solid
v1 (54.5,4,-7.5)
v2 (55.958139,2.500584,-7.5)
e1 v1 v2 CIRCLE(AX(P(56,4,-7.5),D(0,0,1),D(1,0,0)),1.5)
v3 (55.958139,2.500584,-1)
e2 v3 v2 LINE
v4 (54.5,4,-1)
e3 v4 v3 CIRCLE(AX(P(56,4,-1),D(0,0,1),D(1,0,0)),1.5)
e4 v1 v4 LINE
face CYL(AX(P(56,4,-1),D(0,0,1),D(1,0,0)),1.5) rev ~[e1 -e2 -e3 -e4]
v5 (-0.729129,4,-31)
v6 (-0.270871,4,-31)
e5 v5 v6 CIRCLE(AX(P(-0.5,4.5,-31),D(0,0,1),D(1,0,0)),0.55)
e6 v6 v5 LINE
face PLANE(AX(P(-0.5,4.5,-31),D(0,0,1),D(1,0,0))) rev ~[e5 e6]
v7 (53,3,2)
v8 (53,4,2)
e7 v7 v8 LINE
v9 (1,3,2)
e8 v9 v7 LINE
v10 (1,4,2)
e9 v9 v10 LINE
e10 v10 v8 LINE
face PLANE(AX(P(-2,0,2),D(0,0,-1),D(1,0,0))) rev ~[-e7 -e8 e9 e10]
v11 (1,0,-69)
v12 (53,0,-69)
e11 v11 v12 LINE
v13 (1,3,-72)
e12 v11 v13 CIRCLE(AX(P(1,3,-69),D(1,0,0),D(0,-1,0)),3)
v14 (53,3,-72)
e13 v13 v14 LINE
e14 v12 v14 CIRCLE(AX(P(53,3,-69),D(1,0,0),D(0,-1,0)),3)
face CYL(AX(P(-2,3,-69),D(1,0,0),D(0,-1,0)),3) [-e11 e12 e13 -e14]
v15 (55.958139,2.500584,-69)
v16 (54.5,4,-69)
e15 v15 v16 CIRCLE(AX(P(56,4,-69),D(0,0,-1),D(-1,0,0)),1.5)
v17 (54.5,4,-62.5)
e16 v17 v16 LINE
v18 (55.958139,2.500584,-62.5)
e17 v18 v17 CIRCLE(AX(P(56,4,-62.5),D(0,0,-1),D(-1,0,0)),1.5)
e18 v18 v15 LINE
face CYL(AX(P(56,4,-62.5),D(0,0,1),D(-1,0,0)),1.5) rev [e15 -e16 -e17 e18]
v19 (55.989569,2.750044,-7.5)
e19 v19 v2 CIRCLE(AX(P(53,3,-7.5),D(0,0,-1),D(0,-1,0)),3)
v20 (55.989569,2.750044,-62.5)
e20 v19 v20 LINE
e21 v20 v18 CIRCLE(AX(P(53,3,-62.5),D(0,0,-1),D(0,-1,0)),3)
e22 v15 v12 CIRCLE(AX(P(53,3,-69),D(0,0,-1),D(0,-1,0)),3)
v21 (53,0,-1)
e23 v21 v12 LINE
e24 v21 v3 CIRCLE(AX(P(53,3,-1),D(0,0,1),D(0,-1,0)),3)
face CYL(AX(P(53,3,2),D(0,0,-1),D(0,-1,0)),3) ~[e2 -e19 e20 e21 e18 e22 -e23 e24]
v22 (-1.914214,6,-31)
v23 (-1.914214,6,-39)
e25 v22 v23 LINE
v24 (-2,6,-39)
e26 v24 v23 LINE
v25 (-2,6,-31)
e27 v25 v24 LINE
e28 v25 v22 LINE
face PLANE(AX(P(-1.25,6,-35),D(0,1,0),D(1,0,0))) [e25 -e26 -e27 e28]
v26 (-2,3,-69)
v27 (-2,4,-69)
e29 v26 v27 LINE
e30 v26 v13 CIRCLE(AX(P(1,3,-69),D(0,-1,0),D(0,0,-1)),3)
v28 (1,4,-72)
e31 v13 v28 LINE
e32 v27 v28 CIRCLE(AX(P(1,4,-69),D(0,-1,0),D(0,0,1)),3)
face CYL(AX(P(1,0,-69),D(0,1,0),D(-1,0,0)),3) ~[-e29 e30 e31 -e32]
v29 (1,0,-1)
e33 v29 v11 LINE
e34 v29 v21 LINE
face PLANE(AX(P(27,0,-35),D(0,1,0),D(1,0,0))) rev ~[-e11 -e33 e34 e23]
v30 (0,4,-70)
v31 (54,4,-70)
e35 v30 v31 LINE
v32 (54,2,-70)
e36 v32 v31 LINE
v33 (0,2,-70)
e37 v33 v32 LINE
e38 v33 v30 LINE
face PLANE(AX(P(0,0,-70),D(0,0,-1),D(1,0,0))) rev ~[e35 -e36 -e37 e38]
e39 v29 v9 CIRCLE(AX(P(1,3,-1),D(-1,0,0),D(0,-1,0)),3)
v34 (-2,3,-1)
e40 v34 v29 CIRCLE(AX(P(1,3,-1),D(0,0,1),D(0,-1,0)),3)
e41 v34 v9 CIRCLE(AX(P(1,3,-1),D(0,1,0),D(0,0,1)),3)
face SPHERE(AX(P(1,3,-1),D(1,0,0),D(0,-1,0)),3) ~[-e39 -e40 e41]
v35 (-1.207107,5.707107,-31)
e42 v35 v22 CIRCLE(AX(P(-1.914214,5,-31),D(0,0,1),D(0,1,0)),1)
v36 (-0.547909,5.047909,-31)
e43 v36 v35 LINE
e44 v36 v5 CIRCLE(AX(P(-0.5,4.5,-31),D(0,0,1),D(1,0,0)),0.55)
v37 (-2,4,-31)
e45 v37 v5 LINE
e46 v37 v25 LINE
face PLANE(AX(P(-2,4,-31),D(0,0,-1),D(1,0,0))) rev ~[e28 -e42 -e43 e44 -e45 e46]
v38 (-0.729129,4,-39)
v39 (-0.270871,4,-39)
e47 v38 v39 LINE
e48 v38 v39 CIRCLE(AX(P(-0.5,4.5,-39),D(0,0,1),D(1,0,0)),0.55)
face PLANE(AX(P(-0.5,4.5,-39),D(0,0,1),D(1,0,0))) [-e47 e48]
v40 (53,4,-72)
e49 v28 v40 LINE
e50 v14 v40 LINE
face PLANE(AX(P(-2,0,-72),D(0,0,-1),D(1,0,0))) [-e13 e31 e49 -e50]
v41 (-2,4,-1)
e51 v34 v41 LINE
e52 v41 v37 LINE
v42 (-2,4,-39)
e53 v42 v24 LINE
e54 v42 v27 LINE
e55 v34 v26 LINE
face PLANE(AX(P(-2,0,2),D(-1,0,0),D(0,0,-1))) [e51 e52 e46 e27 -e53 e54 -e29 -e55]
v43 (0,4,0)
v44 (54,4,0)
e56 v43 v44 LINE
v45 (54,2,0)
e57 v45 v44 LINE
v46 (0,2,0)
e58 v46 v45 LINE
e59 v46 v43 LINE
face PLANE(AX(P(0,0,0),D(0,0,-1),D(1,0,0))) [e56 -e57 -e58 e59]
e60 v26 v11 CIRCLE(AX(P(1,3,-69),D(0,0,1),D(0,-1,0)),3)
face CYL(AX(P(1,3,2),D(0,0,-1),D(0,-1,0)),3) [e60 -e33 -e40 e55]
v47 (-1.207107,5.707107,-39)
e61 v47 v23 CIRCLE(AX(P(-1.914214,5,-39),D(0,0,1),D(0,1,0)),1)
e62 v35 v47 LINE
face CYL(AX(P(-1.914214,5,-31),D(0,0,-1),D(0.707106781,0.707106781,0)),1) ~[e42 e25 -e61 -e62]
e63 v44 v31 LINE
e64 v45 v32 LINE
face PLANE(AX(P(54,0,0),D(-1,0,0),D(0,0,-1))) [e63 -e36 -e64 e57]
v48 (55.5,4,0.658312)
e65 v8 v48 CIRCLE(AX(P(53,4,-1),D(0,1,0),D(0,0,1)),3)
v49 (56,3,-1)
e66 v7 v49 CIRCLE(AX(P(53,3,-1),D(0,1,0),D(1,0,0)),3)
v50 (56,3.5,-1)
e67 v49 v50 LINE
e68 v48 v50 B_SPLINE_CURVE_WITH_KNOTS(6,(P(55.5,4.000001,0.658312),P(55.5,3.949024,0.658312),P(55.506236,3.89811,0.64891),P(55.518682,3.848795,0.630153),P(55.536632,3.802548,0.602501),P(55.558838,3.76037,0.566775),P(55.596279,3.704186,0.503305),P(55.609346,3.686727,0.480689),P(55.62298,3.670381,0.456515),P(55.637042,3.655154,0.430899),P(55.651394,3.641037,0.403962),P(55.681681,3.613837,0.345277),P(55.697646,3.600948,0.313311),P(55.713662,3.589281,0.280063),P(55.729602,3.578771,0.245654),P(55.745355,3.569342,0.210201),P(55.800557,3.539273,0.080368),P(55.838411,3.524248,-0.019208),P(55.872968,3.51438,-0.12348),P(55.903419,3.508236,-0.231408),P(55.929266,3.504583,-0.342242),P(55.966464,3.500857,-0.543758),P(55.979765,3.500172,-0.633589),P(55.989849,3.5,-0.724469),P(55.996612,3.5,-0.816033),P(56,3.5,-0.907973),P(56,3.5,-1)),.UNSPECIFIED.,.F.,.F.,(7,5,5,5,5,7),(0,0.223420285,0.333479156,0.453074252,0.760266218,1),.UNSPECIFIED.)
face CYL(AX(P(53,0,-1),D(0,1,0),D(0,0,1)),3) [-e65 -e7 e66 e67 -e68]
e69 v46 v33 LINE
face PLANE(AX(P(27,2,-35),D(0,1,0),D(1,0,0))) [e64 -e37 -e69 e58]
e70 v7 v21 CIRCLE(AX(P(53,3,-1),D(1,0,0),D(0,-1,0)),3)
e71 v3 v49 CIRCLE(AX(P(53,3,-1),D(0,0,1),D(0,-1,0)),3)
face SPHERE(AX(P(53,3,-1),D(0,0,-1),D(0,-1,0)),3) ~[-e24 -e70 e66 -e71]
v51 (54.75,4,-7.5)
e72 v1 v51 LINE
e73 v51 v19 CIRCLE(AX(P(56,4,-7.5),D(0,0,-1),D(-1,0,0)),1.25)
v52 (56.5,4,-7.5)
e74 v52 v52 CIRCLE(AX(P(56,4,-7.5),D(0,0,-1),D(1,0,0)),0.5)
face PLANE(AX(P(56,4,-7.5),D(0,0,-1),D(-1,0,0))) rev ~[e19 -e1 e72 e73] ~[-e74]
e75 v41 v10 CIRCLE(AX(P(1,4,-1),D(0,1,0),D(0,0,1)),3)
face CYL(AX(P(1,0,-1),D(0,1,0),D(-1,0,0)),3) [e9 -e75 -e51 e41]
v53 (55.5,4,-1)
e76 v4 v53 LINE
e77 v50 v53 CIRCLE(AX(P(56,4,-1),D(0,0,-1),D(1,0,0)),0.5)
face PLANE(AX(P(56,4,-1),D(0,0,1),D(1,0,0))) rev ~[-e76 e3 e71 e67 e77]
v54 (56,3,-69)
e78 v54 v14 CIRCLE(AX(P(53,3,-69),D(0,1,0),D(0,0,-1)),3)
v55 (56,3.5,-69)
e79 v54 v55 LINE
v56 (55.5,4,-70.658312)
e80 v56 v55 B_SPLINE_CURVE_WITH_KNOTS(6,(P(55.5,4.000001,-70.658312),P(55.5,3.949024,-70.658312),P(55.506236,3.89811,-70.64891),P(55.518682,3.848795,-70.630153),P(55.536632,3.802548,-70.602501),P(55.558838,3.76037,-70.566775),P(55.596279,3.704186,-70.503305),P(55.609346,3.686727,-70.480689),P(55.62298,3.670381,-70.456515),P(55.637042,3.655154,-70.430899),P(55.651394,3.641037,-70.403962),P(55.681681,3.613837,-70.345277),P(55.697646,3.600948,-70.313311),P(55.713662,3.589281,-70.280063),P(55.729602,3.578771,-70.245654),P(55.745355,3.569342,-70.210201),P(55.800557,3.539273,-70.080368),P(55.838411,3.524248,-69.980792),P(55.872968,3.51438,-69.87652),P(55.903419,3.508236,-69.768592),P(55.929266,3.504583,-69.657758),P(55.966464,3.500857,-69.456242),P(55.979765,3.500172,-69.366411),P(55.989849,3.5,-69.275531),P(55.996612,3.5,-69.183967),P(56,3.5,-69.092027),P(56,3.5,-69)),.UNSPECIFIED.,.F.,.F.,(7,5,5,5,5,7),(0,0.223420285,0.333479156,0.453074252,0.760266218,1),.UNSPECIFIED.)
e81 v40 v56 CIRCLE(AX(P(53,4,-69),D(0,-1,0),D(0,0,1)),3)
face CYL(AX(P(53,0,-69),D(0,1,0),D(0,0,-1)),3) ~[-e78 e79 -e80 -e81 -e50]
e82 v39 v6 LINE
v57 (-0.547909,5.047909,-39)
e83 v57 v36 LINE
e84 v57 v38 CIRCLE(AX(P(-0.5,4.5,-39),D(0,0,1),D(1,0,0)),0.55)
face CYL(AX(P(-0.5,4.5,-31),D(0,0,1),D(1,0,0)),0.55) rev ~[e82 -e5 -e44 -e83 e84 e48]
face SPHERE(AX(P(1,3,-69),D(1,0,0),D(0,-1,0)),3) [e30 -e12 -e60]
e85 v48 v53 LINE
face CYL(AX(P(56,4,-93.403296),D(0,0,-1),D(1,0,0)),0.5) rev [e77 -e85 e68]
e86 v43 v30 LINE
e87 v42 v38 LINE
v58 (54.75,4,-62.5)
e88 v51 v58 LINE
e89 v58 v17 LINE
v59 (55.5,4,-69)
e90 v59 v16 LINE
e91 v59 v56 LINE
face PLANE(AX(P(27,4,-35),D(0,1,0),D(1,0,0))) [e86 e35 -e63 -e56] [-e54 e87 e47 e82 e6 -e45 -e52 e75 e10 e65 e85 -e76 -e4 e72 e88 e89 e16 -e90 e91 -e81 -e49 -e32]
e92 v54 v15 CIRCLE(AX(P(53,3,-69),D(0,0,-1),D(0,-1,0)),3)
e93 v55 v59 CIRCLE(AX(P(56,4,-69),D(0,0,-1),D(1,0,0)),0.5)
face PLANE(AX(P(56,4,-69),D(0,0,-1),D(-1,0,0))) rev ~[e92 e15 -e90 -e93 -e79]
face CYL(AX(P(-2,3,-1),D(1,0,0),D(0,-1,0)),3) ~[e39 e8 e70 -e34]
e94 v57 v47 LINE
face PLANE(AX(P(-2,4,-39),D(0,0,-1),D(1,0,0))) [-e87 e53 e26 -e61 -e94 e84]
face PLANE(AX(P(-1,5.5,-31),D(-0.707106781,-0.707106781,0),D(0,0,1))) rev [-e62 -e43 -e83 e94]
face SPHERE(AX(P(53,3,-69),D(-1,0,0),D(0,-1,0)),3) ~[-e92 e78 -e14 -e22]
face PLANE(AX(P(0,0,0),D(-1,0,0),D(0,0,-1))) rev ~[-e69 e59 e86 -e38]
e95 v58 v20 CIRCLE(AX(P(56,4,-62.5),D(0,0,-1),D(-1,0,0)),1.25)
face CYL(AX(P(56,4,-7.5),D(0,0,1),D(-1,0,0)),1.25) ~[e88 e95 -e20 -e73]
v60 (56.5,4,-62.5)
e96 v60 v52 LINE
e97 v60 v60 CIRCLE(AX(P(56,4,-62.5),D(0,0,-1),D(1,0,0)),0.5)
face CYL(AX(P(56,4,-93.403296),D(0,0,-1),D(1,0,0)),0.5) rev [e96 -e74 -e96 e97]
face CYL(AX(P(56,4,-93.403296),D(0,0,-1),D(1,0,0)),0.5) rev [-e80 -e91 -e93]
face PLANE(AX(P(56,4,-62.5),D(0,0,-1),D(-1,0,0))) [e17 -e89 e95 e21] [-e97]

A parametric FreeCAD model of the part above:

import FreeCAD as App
import Part
import Sketcher
from FreeCAD import Vector


def edges_at(feature, points):
    """Names of the edges that pass closest to the given points."""
    edges = feature.Shape.Edges
    near = lambda p: min(range(len(edges)), key=lambda i: edges[i].distToShape(Part.Vertex(*p))[0])
    return sorted({f"Edge{near(p) + 1}" for p in points})

doc = App.newDocument("Part")
body = doc.addObject("PartDesign::Body", "Body")

# Sketch on XZ plane
sketch1 = doc.addObject("Sketcher::SketchObject", "Sketch")
body.addObject(sketch1)
sketch1.AttachmentSupport = (doc.XZ_Plane, [""])
sketch1.MapMode = "FlatFace"
sketch1.addGeometry(Part.LineSegment(Vector(-2, -72, 0), Vector(-2, 2, 0)), False)
sketch1.addGeometry(Part.LineSegment(Vector(-2, 2, 0), Vector(56, 2, 0)), False)
sketch1.addGeometry(Part.LineSegment(Vector(56, 2, 0), Vector(56, -72, 0)), False)
sketch1.addGeometry(Part.LineSegment(Vector(56, -72, 0), Vector(-2, -72, 0)), False)
sketch1.addGeometry(Part.LineSegment(Vector(54, 0, 0), Vector(0, 0, 0)), False)
sketch1.addGeometry(Part.LineSegment(Vector(0, 0, 0), Vector(0, -70, 0)), False)
sketch1.addGeometry(Part.LineSegment(Vector(0, -70, 0), Vector(54, -70, 0)), False)
sketch1.addGeometry(Part.LineSegment(Vector(54, -70, 0), Vector(54, 0, 0)), False)
sketch1.addConstraint(Sketcher.Constraint("Coincident", 0, 2, 1, 1))
sketch1.addConstraint(Sketcher.Constraint("Coincident", 1, 2, 2, 1))
sketch1.addConstraint(Sketcher.Constraint("Coincident", 2, 2, 3, 1))
sketch1.addConstraint(Sketcher.Constraint("Coincident", 3, 2, 0, 1))
sketch1.addConstraint(Sketcher.Constraint("Coincident", 4, 2, 5, 1))
sketch1.addConstraint(Sketcher.Constraint("Coincident", 5, 2, 6, 1))
sketch1.addConstraint(Sketcher.Constraint("Coincident", 6, 2, 7, 1))
sketch1.addConstraint(Sketcher.Constraint("Coincident", 7, 2, 4, 1))
sketch1.addConstraint(Sketcher.Constraint("Vertical", 0))
sketch1.addConstraint(Sketcher.Constraint("Horizontal", 1))
sketch1.addConstraint(Sketcher.Constraint("Vertical", 2))
sketch1.addConstraint(Sketcher.Constraint("Horizontal", 3))
sketch1.addConstraint(Sketcher.Constraint("Horizontal", 4))
sketch1.addConstraint(Sketcher.Constraint("Vertical", 5))
sketch1.addConstraint(Sketcher.Constraint("Horizontal", 6))
sketch1.addConstraint(Sketcher.Constraint("Vertical", 7))
sketch1.addConstraint(Sketcher.Constraint("Coincident", 4, 2, -1, 1))
sketch1.addConstraint(Sketcher.Constraint("DistanceX", 1, 1, 1, 2, 58.0))
sketch1.addConstraint(Sketcher.Constraint("DistanceX", 4, 2, 4, 1, 54.0))
sketch1.addConstraint(Sketcher.Constraint("DistanceY", 0, 1, 0, 2, 74.0))
sketch1.addConstraint(Sketcher.Constraint("DistanceY", 5, 2, 5, 1, 70.0))
sketch1.addConstraint(Sketcher.Constraint("DistanceX", 0, 2, -1, 1, 2.0))
sketch1.addConstraint(Sketcher.Constraint("DistanceY", -1, 1, 0, 2, 2.0))
pad1 = doc.addObject("PartDesign::Pad", "Pad")
body.addObject(pad1)
pad1.Profile = sketch1
pad1.Length = 4
pad1.Reversed = True

# Sketch on XZ plane
sketch2 = doc.addObject("Sketcher::SketchObject", "Sketch001")
body.addObject(sketch2)
sketch2.AttachmentSupport = (doc.XZ_Plane, [""])
sketch2.MapMode = "FlatFace"
sketch2.addGeometry(Part.LineSegment(Vector(0, -70, 0), Vector(0, 0, 0)), False)
sketch2.addGeometry(Part.LineSegment(Vector(0, 0, 0), Vector(54, 0, 0)), False)
sketch2.addGeometry(Part.LineSegment(Vector(54, 0, 0), Vector(54, -70, 0)), False)
sketch2.addGeometry(Part.LineSegment(Vector(54, -70, 0), Vector(0, -70, 0)), False)
sketch2.addConstraint(Sketcher.Constraint("Coincident", 0, 2, 1, 1))
sketch2.addConstraint(Sketcher.Constraint("Coincident", 1, 2, 2, 1))
sketch2.addConstraint(Sketcher.Constraint("Coincident", 2, 2, 3, 1))
sketch2.addConstraint(Sketcher.Constraint("Coincident", 3, 2, 0, 1))
sketch2.addConstraint(Sketcher.Constraint("Vertical", 0))
sketch2.addConstraint(Sketcher.Constraint("Horizontal", 1))
sketch2.addConstraint(Sketcher.Constraint("Vertical", 2))
sketch2.addConstraint(Sketcher.Constraint("Horizontal", 3))
sketch2.addConstraint(Sketcher.Constraint("Coincident", 0, 2, -1, 1))
sketch2.addConstraint(Sketcher.Constraint("DistanceX", 1, 1, 1, 2, 54.0))
sketch2.addConstraint(Sketcher.Constraint("DistanceY", 0, 1, 0, 2, 70.0))
pad2 = doc.addObject("PartDesign::Pad", "Pad001")
body.addObject(pad2)
pad2.Profile = sketch2
pad2.Length = 2
pad2.Reversed = True
doc.recompute()

fillet = doc.addObject("PartDesign::Fillet", "Fillet")
body.addObject(fillet)
fillet.Base = (pad2, edges_at(pad2, [
    (27, 0, -72),
    (56, 0, -35),
    (27, 0, 2),
    (-2, 0, -35),
    (-2, 2, -72),
    (56, 2, -72),
    (56, 2, 2),
    (-2, 2, 2),
]))
fillet.Radius = 3

# Sketch on XZ plane
sketch3 = doc.addObject("Sketcher::SketchObject", "Sketch002")
body.addObject(sketch3)
sketch3.AttachmentSupport = (doc.XZ_Plane, [""])
sketch3.MapMode = "FlatFace"
sketch3.AttachmentOffset = App.Placement(Vector(0, 0, -4), App.Rotation())
sketch3.addGeometry(Part.LineSegment(Vector(-2, -39, 0), Vector(-2, -31, 0)), False)
sketch3.addGeometry(Part.LineSegment(Vector(-2, -31, 0), Vector(-0.5, -31, 0)), False)
sketch3.addGeometry(Part.LineSegment(Vector(-0.5, -31, 0), Vector(-0.5, -39, 0)), False)
sketch3.addGeometry(Part.LineSegment(Vector(-0.5, -39, 0), Vector(-2, -39, 0)), False)
sketch3.addConstraint(Sketcher.Constraint("Coincident", 0, 2, 1, 1))
sketch3.addConstraint(Sketcher.Constraint("Coincident", 1, 2, 2, 1))
sketch3.addConstraint(Sketcher.Constraint("Coincident", 2, 2, 3, 1))
sketch3.addConstraint(Sketcher.Constraint("Coincident", 3, 2, 0, 1))
sketch3.addConstraint(Sketcher.Constraint("Vertical", 0))
sketch3.addConstraint(Sketcher.Constraint("Horizontal", 1))
sketch3.addConstraint(Sketcher.Constraint("Vertical", 2))
sketch3.addConstraint(Sketcher.Constraint("Horizontal", 3))
sketch3.addConstraint(Sketcher.Constraint("DistanceY", 0, 1, 0, 2, 8.0))
sketch3.addConstraint(Sketcher.Constraint("DistanceX", 1, 1, 1, 2, 1.5))
sketch3.addConstraint(Sketcher.Constraint("DistanceX", 0, 2, -1, 1, 2.0))
sketch3.addConstraint(Sketcher.Constraint("DistanceY", 0, 2, -1, 1, 31.0))
pad3 = doc.addObject("PartDesign::Pad", "Pad002")
body.addObject(pad3)
pad3.Profile = sketch3
pad3.Length = 2
pad3.Reversed = True

# Sketch on XY plane
sketch4 = doc.addObject("Sketcher::SketchObject", "Sketch003")
body.addObject(sketch4)
sketch4.AttachmentSupport = (doc.XY_Plane, [""])
sketch4.MapMode = "FlatFace"
sketch4.AttachmentOffset = App.Placement(Vector(0, 0, -1), App.Rotation())
sketch4.addGeometry(Part.Circle(Vector(56, 4, 0), Vector(0, 0, 1), 1.5), False)
sketch4.addConstraint(Sketcher.Constraint("Diameter", 0, 3.0))
sketch4.addConstraint(Sketcher.Constraint("DistanceX", -1, 1, 0, 3, 56.0))
sketch4.addConstraint(Sketcher.Constraint("DistanceY", -1, 1, 0, 3, 4.0))
pocket1 = doc.addObject("PartDesign::Pocket", "Pocket")
body.addObject(pocket1)
pocket1.Profile = sketch4
pocket1.Length = 6.5

# Sketch on XY plane
sketch5 = doc.addObject("Sketcher::SketchObject", "Sketch004")
body.addObject(sketch5)
sketch5.AttachmentSupport = (doc.XY_Plane, [""])
sketch5.MapMode = "FlatFace"
sketch5.AttachmentOffset = App.Placement(Vector(0, 0, -62.5), App.Rotation())
sketch5.addGeometry(Part.Circle(Vector(56, 4, 0), Vector(0, 0, 1), 1.5), False)
sketch5.addConstraint(Sketcher.Constraint("Diameter", 0, 3.0))
sketch5.addConstraint(Sketcher.Constraint("DistanceX", -1, 1, 0, 3, 56.0))
sketch5.addConstraint(Sketcher.Constraint("DistanceY", -1, 1, 0, 3, 4.0))
pocket2 = doc.addObject("PartDesign::Pocket", "Pocket001")
body.addObject(pocket2)
pocket2.Profile = sketch5
pocket2.Length = 6.5

# Sketch on XY plane
sketch6 = doc.addObject("Sketcher::SketchObject", "Sketch005")
body.addObject(sketch6)
sketch6.AttachmentSupport = (doc.XY_Plane, [""])
sketch6.MapMode = "FlatFace"
sketch6.AttachmentOffset = App.Placement(Vector(0, 0, -7.5), App.Rotation())
sketch6.addGeometry(Part.Circle(Vector(56, 4, 0), Vector(0, 0, 1), 1.2), False)
sketch6.addConstraint(Sketcher.Constraint("Diameter", 0, 2.5))
sketch6.addConstraint(Sketcher.Constraint("DistanceX", -1, 1, 0, 3, 56.0))
sketch6.addConstraint(Sketcher.Constraint("DistanceY", -1, 1, 0, 3, 4.0))
pad4 = doc.addObject("PartDesign::Pad", "Pad003")
body.addObject(pad4)
pad4.Profile = sketch6
pad4.Length = 55
pad4.Reversed = True

# Sketch on XY plane
sketch7 = doc.addObject("Sketcher::SketchObject", "Sketch006")
body.addObject(sketch7)
sketch7.AttachmentSupport = (doc.XY_Plane, [""])
sketch7.MapMode = "FlatFace"
sketch7.AttachmentOffset = App.Placement(Vector(0, 0, -1), App.Rotation())
sketch7.addGeometry(Part.Circle(Vector(56, 4, 0), Vector(0, 0, 1), 0.5), False)
sketch7.addConstraint(Sketcher.Constraint("Diameter", 0, 1.0))
sketch7.addConstraint(Sketcher.Constraint("DistanceX", -1, 1, 0, 3, 56.0))
sketch7.addConstraint(Sketcher.Constraint("DistanceY", -1, 1, 0, 3, 4.0))
pocket3 = doc.addObject("PartDesign::Pocket", "Pocket002")
body.addObject(pocket3)
pocket3.Profile = sketch7
pocket3.Type = "ThroughAll"
pocket3.Midplane = True
doc.recompute()

chamfer = doc.addObject("PartDesign::Chamfer", "Chamfer")
body.addObject(chamfer)
chamfer.Base = (pocket3, edges_at(pocket3, [(-0.5, 6, -35)]))
chamfer.Size = 1
doc.recompute()

fillet2 = doc.addObject("PartDesign::Fillet", "Fillet001")
body.addObject(fillet2)
fillet2.Base = (chamfer, edges_at(chamfer, [(-1.5, 6, -35)]))
fillet2.Radius = 1

# Sketch on XY plane
sketch8 = doc.addObject("Sketcher::SketchObject", "Sketch007")
body.addObject(sketch8)
sketch8.AttachmentSupport = (doc.XY_Plane, [""])
sketch8.MapMode = "FlatFace"
sketch8.AttachmentOffset = App.Placement(Vector(0, 0, -31), App.Rotation())
sketch8.addGeometry(Part.Circle(Vector(-0.5, 4.5, 0), Vector(0, 0, 1), 0.6), False)
sketch8.addConstraint(Sketcher.Constraint("Diameter", 0, 1.1))
sketch8.addConstraint(Sketcher.Constraint("DistanceX", 0, 3, -1, 1, 0.5))
sketch8.addConstraint(Sketcher.Constraint("DistanceY", -1, 1, 0, 3, 4.5))
pocket4 = doc.addObject("PartDesign::Pocket", "Pocket003")
body.addObject(pocket4)
pocket4.Profile = sketch8
pocket4.Length = 8

doc.recompute()
